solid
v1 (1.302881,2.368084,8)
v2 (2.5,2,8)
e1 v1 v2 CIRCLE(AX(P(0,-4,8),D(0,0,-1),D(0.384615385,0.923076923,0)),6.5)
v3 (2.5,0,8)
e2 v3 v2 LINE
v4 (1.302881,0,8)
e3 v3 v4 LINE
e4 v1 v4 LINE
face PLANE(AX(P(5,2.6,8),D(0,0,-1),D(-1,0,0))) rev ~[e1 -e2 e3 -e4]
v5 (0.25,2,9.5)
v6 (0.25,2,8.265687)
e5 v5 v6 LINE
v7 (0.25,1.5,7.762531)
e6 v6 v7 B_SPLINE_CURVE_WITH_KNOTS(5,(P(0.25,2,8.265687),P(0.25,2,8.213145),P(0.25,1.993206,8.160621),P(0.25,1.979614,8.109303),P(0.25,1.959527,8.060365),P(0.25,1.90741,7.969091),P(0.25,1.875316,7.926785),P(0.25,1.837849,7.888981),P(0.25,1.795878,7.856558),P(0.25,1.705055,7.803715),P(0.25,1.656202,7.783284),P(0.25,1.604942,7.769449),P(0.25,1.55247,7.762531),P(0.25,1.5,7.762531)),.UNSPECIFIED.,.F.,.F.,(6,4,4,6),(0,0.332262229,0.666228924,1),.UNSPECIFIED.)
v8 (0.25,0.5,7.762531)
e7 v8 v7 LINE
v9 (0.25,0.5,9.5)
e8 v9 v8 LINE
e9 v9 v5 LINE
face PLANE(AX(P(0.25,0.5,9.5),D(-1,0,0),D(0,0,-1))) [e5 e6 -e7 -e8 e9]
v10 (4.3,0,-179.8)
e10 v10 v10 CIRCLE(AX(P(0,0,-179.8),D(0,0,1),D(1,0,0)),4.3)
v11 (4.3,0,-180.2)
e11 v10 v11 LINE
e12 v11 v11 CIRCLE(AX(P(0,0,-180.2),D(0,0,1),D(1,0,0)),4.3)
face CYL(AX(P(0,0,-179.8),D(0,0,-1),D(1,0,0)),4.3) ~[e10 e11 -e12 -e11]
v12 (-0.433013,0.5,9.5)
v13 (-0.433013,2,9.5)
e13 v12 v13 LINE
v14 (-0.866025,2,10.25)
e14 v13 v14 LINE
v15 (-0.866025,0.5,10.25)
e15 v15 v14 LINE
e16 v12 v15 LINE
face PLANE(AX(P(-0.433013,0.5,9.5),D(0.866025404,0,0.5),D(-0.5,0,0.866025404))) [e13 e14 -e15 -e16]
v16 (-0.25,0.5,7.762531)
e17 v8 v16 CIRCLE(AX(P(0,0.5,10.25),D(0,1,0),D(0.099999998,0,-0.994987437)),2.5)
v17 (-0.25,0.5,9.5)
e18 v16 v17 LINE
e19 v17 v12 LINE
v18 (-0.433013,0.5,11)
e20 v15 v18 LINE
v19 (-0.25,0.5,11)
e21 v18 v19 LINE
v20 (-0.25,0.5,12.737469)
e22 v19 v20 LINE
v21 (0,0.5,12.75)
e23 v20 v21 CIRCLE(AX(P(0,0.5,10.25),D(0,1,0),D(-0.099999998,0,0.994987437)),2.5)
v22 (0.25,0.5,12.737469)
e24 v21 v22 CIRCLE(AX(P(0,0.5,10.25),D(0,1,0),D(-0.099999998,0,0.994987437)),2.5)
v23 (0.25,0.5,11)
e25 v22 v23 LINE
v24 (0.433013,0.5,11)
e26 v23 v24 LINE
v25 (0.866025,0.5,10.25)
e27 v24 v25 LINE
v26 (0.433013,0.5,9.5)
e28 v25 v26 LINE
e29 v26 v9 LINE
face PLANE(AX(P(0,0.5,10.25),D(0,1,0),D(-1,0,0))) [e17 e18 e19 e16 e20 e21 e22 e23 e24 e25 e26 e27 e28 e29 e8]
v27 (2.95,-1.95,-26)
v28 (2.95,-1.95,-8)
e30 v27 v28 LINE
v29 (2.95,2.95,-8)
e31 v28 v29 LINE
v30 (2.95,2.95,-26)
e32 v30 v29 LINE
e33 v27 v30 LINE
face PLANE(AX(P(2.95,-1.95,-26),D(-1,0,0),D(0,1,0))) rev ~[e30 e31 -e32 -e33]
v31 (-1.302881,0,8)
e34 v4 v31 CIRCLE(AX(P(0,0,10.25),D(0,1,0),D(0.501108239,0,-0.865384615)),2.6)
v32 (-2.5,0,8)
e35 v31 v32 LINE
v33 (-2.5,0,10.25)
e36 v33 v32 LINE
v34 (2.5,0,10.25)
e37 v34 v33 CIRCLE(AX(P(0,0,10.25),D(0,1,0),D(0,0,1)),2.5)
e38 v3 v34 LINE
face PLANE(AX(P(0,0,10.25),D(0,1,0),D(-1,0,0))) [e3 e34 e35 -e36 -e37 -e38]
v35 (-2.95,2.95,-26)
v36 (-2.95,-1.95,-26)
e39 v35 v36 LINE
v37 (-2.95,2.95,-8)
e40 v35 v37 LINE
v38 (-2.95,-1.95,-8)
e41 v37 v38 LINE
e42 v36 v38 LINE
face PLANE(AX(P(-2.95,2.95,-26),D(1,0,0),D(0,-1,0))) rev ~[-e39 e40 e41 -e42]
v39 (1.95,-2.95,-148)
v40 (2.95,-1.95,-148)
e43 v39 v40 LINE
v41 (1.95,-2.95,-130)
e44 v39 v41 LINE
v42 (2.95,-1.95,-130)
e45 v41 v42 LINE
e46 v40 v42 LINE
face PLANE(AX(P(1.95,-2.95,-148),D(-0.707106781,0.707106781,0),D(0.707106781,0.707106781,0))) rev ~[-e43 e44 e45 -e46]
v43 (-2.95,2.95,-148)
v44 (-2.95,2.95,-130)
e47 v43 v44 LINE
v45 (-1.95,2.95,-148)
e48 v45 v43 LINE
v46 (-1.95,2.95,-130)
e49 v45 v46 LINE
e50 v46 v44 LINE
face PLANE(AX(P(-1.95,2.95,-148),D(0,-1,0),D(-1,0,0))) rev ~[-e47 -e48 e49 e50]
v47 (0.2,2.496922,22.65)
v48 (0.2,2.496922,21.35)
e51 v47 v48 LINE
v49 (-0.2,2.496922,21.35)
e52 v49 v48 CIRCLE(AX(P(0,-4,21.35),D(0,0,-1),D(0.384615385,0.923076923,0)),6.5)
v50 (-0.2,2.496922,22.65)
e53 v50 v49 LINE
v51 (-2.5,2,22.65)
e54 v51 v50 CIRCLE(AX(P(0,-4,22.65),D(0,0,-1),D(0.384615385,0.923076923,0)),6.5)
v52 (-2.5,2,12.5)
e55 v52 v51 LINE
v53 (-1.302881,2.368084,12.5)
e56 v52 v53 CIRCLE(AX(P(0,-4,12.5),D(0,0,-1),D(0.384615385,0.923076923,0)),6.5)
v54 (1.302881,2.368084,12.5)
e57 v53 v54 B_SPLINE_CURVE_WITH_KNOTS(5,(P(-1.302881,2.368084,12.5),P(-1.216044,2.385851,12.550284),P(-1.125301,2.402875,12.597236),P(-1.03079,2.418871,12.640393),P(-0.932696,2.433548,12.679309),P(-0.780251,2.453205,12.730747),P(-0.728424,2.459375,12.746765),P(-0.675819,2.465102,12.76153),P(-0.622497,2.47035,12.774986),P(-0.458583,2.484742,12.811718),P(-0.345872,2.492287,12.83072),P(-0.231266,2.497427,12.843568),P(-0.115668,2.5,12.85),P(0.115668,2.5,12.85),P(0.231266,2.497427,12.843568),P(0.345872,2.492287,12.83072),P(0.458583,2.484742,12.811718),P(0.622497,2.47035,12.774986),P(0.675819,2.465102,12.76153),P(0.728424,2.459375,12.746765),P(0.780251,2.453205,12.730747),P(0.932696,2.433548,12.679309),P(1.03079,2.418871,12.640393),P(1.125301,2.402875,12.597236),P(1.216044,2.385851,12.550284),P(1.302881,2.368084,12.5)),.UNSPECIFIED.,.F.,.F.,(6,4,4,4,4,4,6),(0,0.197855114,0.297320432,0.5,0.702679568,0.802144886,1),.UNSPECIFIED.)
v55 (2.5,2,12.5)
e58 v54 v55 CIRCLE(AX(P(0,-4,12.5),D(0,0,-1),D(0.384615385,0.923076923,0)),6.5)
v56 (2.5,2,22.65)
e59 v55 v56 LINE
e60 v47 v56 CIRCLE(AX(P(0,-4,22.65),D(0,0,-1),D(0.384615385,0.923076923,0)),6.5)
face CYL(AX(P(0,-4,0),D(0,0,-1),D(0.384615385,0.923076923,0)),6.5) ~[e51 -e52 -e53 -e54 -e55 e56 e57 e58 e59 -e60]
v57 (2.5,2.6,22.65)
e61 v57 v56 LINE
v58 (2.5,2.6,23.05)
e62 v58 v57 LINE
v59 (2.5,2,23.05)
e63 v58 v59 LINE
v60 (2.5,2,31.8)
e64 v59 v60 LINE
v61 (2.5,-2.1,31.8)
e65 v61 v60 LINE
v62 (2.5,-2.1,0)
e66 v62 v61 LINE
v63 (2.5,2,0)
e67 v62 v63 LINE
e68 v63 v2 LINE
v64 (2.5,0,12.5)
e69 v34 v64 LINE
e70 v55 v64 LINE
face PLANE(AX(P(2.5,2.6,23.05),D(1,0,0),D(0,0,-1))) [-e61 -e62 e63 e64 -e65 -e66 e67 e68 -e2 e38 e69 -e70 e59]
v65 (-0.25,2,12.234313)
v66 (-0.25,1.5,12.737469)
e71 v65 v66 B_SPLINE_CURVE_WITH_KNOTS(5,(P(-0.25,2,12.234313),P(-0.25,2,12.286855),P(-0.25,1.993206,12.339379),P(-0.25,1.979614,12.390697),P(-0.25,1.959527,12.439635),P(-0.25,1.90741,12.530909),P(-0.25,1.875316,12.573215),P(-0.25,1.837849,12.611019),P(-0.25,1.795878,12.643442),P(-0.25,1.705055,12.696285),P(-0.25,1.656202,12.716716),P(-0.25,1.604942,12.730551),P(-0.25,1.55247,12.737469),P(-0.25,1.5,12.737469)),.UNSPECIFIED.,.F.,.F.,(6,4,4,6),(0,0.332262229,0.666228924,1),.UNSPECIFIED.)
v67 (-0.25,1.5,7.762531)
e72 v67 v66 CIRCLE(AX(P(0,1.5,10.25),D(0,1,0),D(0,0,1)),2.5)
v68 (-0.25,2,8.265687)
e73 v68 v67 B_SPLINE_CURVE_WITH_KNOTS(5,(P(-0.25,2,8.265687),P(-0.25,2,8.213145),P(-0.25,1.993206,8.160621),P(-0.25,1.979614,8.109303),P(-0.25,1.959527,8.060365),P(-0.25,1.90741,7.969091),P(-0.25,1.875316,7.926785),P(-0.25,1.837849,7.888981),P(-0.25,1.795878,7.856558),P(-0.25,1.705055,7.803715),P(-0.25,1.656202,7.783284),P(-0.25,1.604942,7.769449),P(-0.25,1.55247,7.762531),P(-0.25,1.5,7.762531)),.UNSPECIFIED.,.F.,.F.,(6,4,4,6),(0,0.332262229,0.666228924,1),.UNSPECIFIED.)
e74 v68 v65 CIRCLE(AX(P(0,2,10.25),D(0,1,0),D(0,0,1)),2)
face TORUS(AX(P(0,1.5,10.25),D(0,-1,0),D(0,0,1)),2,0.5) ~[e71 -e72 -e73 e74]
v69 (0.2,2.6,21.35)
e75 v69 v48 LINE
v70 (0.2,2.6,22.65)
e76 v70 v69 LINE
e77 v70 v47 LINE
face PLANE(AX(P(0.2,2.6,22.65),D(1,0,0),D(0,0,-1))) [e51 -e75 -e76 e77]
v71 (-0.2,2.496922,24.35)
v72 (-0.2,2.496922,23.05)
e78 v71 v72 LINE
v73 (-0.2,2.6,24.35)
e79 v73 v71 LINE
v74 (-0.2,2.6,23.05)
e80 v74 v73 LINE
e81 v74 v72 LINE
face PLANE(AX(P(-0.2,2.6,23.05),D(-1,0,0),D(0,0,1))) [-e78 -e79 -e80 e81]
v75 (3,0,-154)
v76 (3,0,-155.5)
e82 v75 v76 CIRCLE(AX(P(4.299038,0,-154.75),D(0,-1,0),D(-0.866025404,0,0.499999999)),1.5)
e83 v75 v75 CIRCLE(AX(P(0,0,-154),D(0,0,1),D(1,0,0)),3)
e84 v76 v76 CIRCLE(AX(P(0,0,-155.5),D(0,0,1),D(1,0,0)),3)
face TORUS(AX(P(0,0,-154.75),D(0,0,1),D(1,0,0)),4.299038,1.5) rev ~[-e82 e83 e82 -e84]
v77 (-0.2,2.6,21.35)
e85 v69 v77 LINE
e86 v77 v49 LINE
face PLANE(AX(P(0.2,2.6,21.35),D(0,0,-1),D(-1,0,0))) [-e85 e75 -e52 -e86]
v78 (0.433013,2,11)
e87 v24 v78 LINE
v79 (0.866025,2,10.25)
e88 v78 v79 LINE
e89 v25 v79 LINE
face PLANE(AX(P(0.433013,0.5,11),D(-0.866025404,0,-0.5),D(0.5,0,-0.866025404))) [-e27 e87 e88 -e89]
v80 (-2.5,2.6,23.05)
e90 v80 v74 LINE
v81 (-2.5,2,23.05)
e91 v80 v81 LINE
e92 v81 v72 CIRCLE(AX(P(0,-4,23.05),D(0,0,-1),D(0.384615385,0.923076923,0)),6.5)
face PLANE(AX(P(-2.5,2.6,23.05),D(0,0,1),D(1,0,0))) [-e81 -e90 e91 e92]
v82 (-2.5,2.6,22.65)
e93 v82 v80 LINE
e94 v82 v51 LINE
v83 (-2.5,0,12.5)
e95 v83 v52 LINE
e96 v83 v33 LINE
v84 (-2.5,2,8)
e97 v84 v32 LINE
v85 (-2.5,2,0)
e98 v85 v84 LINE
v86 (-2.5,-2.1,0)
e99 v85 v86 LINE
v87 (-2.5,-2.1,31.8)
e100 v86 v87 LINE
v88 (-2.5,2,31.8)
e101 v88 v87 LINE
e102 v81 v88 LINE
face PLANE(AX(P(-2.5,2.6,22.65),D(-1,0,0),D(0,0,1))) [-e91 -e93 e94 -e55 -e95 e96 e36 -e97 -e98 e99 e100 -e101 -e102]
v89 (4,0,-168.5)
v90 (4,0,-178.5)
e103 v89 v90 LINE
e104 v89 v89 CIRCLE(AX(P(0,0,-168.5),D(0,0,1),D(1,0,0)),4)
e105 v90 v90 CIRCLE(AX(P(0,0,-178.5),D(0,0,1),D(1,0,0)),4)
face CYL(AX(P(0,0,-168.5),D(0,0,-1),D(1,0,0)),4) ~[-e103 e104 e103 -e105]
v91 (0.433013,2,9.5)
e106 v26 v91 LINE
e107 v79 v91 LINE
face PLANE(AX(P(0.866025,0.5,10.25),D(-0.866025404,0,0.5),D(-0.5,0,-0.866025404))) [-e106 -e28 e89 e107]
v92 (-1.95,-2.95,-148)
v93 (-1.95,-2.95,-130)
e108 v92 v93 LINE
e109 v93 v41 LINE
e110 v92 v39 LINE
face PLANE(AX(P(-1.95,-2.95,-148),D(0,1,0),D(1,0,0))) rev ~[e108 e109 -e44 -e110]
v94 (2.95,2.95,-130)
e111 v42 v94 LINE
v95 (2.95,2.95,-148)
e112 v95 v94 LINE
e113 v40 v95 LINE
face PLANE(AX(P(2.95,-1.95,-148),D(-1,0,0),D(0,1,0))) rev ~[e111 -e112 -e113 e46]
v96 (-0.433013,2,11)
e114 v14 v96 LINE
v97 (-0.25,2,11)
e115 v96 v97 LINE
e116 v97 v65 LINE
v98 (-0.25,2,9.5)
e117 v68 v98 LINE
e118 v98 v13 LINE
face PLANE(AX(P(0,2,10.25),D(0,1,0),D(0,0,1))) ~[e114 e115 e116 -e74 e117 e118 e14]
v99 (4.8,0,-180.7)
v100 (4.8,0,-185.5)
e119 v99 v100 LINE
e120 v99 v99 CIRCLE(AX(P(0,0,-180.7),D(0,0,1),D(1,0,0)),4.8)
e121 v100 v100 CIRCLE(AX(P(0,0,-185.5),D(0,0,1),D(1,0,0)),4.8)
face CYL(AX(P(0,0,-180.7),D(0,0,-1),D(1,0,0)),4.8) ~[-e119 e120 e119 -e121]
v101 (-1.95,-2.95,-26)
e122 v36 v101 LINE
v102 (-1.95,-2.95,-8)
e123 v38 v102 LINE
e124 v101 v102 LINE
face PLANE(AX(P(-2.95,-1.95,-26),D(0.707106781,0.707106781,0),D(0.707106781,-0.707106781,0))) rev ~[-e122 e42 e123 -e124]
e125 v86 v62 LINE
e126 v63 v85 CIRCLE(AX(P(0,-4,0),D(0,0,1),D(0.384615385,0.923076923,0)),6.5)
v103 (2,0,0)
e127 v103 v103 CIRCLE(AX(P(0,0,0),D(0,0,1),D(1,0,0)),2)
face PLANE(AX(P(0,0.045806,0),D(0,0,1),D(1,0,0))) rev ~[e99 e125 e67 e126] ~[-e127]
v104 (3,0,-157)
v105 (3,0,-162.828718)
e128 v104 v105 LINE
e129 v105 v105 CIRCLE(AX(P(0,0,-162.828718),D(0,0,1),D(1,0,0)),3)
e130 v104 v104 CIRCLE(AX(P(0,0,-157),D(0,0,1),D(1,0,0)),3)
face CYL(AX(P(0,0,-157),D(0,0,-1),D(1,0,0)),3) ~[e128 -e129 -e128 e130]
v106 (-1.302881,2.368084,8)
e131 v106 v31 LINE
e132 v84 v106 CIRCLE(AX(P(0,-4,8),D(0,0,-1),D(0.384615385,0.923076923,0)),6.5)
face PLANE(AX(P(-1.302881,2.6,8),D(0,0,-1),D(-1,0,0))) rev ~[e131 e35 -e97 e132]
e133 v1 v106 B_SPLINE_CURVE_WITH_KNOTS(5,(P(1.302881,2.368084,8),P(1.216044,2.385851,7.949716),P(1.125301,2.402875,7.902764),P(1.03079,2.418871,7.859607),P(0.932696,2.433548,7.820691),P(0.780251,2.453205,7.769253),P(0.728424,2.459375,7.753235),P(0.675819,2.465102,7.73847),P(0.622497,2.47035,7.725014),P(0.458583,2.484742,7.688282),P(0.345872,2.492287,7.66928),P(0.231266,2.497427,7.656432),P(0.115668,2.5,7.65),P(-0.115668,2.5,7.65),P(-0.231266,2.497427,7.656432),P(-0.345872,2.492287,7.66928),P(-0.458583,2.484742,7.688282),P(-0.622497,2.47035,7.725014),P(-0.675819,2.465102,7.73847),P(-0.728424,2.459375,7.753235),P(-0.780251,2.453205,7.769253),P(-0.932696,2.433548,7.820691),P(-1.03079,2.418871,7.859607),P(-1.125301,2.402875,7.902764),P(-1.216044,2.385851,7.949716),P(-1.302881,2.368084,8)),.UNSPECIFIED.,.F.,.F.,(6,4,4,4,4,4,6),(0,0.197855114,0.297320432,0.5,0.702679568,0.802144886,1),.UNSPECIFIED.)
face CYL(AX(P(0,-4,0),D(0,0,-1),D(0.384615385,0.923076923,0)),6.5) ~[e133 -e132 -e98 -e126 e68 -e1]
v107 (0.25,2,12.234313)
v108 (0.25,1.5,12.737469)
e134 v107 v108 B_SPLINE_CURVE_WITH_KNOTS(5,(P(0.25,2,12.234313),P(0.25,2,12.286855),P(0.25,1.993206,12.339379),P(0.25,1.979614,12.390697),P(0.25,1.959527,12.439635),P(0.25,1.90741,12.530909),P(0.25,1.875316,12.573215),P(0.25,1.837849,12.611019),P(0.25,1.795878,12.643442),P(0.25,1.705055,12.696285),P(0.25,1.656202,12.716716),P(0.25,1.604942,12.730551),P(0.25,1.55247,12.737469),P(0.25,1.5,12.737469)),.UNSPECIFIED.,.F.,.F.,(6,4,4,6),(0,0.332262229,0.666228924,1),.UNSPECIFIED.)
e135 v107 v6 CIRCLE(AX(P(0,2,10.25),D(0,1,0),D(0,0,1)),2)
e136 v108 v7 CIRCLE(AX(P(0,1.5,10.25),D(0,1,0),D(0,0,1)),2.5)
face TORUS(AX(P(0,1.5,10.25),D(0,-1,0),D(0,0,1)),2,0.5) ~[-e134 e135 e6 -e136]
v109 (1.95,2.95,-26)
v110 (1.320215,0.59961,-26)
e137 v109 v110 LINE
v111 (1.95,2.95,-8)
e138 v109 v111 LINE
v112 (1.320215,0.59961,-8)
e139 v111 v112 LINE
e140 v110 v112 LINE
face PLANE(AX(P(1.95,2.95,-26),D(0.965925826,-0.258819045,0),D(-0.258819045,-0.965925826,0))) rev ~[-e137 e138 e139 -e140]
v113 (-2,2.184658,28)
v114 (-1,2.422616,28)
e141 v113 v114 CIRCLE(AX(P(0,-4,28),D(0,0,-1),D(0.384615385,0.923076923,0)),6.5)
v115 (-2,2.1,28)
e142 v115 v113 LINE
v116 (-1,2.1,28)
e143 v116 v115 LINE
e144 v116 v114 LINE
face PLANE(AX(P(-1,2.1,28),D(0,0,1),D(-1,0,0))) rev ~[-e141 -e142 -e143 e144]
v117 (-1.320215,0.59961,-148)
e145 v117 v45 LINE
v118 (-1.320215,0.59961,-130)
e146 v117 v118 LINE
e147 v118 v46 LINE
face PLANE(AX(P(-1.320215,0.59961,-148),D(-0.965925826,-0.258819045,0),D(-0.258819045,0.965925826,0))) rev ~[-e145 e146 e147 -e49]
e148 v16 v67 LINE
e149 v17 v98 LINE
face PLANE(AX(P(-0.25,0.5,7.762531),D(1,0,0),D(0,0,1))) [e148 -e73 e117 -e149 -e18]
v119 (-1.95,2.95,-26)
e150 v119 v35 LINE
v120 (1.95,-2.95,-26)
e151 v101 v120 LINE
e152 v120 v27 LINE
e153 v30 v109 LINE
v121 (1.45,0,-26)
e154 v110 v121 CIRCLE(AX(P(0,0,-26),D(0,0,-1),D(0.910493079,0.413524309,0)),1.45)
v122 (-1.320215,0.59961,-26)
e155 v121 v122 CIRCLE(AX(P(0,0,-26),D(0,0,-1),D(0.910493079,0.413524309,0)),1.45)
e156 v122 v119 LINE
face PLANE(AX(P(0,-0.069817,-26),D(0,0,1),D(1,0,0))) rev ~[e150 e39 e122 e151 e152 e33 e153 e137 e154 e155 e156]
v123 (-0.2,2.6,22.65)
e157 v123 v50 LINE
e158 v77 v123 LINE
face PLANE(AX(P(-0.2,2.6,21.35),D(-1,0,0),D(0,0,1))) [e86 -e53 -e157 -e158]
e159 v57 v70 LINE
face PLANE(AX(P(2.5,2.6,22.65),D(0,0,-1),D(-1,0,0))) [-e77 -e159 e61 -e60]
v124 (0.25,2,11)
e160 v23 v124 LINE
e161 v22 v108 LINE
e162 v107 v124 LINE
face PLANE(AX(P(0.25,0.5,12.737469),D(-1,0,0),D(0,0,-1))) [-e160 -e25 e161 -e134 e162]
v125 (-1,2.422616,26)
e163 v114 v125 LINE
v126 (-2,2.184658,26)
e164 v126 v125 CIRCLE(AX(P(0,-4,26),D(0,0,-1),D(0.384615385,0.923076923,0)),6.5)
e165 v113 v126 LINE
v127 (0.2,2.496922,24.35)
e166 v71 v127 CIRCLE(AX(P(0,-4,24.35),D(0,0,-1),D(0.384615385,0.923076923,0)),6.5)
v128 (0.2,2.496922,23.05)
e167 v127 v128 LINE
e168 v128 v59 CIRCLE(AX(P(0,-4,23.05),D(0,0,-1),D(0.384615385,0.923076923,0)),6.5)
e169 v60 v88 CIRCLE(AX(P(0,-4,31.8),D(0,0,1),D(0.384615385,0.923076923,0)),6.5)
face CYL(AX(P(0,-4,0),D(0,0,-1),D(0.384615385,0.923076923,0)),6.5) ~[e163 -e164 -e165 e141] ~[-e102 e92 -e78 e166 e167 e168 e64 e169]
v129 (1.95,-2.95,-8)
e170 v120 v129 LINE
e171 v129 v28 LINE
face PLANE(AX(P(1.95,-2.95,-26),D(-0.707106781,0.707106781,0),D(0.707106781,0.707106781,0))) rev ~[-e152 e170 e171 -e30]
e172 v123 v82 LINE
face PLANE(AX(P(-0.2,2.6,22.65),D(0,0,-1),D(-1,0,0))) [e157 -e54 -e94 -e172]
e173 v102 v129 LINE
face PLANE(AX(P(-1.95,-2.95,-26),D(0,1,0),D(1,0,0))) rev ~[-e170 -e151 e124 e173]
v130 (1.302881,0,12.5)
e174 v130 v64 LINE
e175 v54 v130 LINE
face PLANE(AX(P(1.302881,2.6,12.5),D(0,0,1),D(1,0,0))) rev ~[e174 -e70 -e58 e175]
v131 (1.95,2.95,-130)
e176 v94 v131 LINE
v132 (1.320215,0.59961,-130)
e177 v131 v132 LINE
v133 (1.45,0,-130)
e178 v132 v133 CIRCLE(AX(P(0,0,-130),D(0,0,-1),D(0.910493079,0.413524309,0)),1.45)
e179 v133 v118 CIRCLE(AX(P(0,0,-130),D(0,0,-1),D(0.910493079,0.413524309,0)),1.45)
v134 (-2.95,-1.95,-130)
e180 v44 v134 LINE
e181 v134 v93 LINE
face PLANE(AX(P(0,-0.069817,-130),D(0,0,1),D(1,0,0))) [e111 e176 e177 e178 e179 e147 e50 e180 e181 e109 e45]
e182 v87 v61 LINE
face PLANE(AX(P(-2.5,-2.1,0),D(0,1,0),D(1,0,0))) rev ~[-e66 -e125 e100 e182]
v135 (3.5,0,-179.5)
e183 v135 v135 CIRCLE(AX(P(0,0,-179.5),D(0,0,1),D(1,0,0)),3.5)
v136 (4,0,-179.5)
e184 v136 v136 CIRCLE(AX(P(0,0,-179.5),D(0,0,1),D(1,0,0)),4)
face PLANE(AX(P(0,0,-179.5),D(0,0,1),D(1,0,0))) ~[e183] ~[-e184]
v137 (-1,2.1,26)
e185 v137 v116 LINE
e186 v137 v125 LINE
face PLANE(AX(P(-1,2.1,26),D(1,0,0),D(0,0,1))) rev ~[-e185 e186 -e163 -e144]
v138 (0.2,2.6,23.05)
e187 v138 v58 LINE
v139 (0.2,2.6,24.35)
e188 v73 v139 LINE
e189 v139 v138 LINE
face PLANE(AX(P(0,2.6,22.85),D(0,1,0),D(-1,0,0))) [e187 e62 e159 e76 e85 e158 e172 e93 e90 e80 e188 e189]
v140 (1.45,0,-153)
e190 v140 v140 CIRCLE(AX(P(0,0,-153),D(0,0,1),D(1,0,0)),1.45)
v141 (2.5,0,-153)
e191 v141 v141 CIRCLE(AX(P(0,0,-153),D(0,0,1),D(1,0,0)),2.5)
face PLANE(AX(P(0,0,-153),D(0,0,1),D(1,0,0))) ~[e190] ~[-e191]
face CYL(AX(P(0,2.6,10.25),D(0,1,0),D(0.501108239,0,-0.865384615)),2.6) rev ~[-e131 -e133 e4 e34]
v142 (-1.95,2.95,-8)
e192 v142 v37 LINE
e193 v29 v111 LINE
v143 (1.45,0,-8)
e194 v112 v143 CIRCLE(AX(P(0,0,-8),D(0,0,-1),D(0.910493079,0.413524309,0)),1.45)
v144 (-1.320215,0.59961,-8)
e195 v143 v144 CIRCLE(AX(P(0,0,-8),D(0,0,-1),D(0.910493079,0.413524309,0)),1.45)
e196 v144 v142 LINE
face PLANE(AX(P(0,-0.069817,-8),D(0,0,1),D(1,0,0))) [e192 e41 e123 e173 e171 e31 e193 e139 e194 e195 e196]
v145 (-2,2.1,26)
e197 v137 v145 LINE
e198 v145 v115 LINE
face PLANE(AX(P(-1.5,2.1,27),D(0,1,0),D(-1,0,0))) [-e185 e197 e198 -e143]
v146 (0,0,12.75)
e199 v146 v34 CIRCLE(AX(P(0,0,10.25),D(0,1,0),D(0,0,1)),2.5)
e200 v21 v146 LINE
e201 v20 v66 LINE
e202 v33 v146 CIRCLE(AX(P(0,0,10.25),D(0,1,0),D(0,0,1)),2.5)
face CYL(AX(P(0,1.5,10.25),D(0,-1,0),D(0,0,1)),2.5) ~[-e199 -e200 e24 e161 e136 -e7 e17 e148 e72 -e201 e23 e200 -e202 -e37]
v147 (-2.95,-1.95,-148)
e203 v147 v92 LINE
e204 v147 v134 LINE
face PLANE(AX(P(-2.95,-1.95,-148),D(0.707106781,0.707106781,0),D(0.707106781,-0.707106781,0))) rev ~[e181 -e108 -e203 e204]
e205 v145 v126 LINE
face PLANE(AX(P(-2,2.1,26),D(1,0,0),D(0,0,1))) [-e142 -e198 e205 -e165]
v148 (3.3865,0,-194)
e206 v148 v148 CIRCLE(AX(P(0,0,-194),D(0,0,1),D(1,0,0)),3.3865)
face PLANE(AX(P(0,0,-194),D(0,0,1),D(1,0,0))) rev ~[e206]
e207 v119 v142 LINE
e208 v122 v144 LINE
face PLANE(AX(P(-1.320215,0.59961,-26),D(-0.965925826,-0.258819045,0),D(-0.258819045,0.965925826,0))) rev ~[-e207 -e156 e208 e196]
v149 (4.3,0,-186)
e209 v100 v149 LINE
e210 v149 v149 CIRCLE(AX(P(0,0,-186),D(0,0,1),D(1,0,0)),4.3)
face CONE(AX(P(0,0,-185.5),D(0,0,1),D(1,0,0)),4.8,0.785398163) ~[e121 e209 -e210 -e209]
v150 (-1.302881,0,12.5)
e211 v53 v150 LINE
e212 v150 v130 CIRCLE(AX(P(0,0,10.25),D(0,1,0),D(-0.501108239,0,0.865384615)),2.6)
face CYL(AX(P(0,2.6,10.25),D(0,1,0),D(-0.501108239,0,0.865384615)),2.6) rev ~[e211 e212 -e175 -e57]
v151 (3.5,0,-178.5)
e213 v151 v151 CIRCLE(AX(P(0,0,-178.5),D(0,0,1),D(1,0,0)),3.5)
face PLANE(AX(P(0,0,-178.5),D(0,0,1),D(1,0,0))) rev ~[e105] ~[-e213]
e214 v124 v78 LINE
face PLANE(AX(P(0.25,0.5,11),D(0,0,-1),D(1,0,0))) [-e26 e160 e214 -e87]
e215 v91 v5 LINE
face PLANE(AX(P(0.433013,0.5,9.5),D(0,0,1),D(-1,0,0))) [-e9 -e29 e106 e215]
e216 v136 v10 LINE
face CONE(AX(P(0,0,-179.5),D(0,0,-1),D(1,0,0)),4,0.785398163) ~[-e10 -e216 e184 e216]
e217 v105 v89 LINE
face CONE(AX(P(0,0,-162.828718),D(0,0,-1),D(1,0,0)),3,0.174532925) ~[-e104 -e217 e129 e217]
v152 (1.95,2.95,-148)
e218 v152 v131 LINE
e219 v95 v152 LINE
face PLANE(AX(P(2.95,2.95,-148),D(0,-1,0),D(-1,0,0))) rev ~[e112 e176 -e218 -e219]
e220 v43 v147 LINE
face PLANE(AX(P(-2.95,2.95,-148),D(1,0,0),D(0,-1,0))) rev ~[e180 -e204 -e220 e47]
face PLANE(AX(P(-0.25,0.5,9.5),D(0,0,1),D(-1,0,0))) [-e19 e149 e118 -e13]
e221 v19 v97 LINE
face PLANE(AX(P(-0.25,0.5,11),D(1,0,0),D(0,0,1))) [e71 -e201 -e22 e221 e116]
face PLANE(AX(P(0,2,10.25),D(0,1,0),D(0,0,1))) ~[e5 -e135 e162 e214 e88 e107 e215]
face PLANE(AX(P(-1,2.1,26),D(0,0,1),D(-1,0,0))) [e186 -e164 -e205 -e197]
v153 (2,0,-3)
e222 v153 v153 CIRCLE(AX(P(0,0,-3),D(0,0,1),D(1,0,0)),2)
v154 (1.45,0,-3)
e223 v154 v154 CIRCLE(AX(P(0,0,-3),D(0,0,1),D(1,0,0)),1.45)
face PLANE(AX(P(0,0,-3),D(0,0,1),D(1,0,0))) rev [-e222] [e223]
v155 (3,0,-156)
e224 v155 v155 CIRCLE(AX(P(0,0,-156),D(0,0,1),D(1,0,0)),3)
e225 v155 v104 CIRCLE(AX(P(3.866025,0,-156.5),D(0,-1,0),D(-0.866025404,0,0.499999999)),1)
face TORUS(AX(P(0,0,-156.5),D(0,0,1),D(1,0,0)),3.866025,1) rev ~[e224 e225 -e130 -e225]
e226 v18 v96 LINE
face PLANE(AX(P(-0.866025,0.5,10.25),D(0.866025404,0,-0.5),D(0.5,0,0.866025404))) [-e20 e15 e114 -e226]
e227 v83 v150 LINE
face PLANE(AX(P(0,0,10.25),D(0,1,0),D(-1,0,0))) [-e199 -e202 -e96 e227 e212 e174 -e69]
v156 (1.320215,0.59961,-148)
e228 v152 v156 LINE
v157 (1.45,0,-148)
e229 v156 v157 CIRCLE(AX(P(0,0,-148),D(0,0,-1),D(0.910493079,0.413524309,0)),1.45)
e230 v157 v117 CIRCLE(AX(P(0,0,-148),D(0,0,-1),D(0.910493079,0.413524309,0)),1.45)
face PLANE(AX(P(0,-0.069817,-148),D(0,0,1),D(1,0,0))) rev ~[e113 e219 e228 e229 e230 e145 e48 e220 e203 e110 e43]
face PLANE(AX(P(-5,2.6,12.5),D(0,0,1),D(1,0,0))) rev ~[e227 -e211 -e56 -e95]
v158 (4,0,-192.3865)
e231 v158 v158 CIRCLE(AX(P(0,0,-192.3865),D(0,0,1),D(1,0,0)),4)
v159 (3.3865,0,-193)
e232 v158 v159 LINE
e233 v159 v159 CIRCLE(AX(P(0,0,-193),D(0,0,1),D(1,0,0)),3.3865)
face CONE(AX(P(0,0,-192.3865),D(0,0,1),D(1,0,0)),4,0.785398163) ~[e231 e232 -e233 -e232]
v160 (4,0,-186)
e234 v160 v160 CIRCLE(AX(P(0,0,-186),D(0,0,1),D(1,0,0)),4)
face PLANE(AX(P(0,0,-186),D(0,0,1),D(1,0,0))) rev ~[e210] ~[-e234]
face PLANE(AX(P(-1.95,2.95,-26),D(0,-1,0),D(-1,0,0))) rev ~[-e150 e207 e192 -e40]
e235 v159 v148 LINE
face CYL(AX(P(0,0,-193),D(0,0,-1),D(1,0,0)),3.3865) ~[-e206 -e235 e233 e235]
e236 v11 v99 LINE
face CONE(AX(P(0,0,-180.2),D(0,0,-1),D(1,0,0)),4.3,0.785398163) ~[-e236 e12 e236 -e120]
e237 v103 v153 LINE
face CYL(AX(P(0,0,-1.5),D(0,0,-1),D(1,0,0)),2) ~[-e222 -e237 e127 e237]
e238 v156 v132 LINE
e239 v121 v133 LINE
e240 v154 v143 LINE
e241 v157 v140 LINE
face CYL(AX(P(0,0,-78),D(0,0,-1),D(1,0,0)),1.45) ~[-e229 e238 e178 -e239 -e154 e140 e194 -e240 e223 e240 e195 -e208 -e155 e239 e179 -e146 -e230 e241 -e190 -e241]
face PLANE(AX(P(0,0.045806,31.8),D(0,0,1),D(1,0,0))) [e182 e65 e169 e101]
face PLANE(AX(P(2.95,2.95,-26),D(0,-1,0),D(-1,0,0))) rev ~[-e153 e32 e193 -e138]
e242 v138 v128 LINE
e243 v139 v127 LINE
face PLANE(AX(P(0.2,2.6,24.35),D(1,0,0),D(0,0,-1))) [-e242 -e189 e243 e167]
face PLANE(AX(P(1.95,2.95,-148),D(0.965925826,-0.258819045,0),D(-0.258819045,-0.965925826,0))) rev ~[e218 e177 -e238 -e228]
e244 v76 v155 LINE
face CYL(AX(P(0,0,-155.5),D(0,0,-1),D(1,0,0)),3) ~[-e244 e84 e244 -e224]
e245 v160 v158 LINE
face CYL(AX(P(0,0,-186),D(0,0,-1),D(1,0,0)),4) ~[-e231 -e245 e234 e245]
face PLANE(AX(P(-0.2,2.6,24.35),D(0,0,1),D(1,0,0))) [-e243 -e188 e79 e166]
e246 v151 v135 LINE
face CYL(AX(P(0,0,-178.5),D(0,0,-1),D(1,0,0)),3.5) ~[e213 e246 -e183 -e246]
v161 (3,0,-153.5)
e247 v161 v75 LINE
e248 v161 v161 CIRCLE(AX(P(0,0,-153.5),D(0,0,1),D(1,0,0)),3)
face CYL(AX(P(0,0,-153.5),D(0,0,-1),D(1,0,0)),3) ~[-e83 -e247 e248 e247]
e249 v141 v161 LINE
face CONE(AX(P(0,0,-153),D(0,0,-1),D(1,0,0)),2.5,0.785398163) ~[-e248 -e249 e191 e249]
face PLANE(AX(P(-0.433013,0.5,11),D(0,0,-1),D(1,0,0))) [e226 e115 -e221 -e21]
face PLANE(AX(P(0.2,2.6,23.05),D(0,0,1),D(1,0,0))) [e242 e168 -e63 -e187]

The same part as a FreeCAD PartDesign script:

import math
import FreeCAD as App
import Part
import Sketcher
from FreeCAD import Vector
Q = App.Units.Quantity


def add_polygon(sketch, points):
    """Adds a closed chain of lines whose ends are joined by coincident constraints."""
    first, n = sketch.GeometryCount, len(points)
    for a, b in zip(points, points[1:] + points[:1]):
        sketch.addGeometry(Part.LineSegment(App.Vector(*a, 0), App.Vector(*b, 0)), False)
    for i in range(n):
        sketch.addConstraint(Sketcher.Constraint("Coincident", first + i, 2, first + (i + 1) % n, 1))

doc = App.newDocument("Part")
body = doc.addObject("PartDesign::Body", "Body")

sketch1 = body.newObject("Sketcher::SketchObject", "Sketch")
sketch1.AttachmentSupport = (doc.getObject("XY_Plane"), [""])
sketch1.MapMode = "FlatFace"
sketch1.addGeometry([
    Part.LineSegment(Vector(-2.5, -2.1, 0), Vector(2.5, -2.1, 0)),
    Part.LineSegment(Vector(2.5, -2.1, 0), Vector(2.5, 2, 0)),
    Part.ArcOfCircle(Part.Circle(Vector(0, -4, 0), Vector(0, 0, 1), 6.5), math.radians(67), math.radians(113)),
    Part.LineSegment(Vector(-2.5, 2, 0), Vector(-2.5, -2.1, 0)),
], False)
sketch1.addConstraint([
    Sketcher.Constraint("Coincident", 0, 2, 1, 1),
    Sketcher.Constraint("Coincident", 1, 2, 2, 1),
    Sketcher.Constraint("Coincident", 2, 2, 3, 1),
    Sketcher.Constraint("Coincident", 3, 2, 0, 1),
    Sketcher.Constraint("Horizontal", 0),
    Sketcher.Constraint("Vertical", 1),
    Sketcher.Constraint("Vertical", 3),
    Sketcher.Constraint("Symmetric", 1, 2, 2, 2, -2),
    Sketcher.Constraint("Radius", 2, Q("6.5 mm")),
    Sketcher.Constraint("DistanceX", 0, 1, 0, 2, Q("5 mm")),
    Sketcher.Constraint("DistanceY", 1, 1, 1, 2, Q("4.1 mm")),
    Sketcher.Constraint("DistanceY", 2, 3, -1, 1, Q("4 mm")),
])
pad1 = body.newObject("PartDesign::Pad", "Pad")
pad1.Profile = sketch1
pad1.Length = 31.8

sketch2 = body.newObject("Sketcher::SketchObject", "Sketch001")
sketch2.AttachmentSupport = (doc.getObject("YZ_Plane"), [""])
sketch2.MapMode = "FlatFace"
add_polygon(sketch2, [(2, 0), (0, 0), (0, -3), (2, -3)])
sketch2.addConstraint([
    Sketcher.Constraint("Horizontal", 0),
    Sketcher.Constraint("Vertical", 1),
    Sketcher.Constraint("Horizontal", 2),
    Sketcher.Constraint("Vertical", 3),
    Sketcher.Constraint("Coincident", 0, 2, -1, 1),
    Sketcher.Constraint("DistanceX", 0, 2, 0, 1, Q("2 mm")),
    Sketcher.Constraint("DistanceY", 1, 2, 1, 1, Q("3 mm")),
])
revolution = body.newObject("PartDesign::Revolution", "Revolution")
revolution.Profile = sketch2
revolution.ReferenceAxis = (sketch2, ["V_Axis"])
revolution.Angle = 360

sketch3 = body.newObject("Sketcher::SketchObject", "Sketch002")
sketch3.AttachmentSupport = (doc.getObject("XZ_Plane"), [""])
sketch3.MapMode = "FlatFace"
sketch3.AttachmentOffset = App.Placement(Vector(0, 0, -2.6), App.Rotation())
add_polygon(sketch3, [(-2.5, 23.05), (-0.2, 23.05), (-0.2, 24.35), (0.2, 24.35), (0.2, 23.05), (2.5, 23.05), (2.5, 22.65), (0.2, 22.65), (0.2, 21.35), (-0.2, 21.35), (-0.2, 22.65), (-2.5, 22.65)])
sketch3.addConstraint([
    Sketcher.Constraint("Horizontal", 0),
    Sketcher.Constraint("Vertical", 1),
    Sketcher.Constraint("Horizontal", 2),
    Sketcher.Constraint("Vertical", 3),
    Sketcher.Constraint("Horizontal", 4),
    Sketcher.Constraint("Vertical", 5),
    Sketcher.Constraint("Horizontal", 6),
    Sketcher.Constraint("Vertical", 7),
    Sketcher.Constraint("Horizontal", 8),
    Sketcher.Constraint("Vertical", 9),
    Sketcher.Constraint("Horizontal", 10),
    Sketcher.Constraint("Vertical", 11),
    Sketcher.Constraint("Symmetric", 0, 2, 3, 2, -2),
    Sketcher.Constraint("Symmetric", 6, 2, 9, 2, -2),
    Sketcher.Constraint("Vertical", 3, 2, 6, 2),
    Sketcher.Constraint("Equal", 0, 4),
    Sketcher.Constraint("Equal", 8, 5),
    Sketcher.Constraint("Equal", 3, 7),
    Sketcher.Constraint("DistanceX", 0, 1, 0, 2, Q("2.3 mm")),
    Sketcher.Constraint("DistanceX", 2, 1, 2, 2, Q("0.4 mm")),
    Sketcher.Constraint("DistanceY", 1, 1, 1, 2, Q("1.3 mm")),
    Sketcher.Constraint("DistanceY", -1, 1, 0, 2, Q("23.05 mm")),
])
pad2 = body.newObject("PartDesign::Pad", "Pad001")
pad2.Profile = sketch3
pad2.Length = 2

sketch4 = body.newObject("Sketcher::SketchObject", "Sketch003")
sketch4.AttachmentSupport = (doc.getObject("YZ_Plane"), [""])
sketch4.MapMode = "FlatFace"
add_polygon(sketch4, [(1.4, -3), (0, -3), (0, -153), (1.4, -153)])
sketch4.addConstraint([
    Sketcher.Constraint("Horizontal", 0),
    Sketcher.Constraint("Vertical", 1),
    Sketcher.Constraint("Horizontal", 2),
    Sketcher.Constraint("Vertical", 3),
    Sketcher.Constraint("PointOnObject", 0, 2, -2),
    Sketcher.Constraint("DistanceY", 1, 2, 1, 1, Q("150 mm")),
    Sketcher.Constraint("DistanceY", 0, 2, -1, 1, Q("3 mm")),
    Sketcher.Constraint("DistanceX", 0, 2, 0, 1, Q("1.45 mm")),
])
revolution2 = body.newObject("PartDesign::Revolution", "Revolution001")
revolution2.Profile = sketch4
revolution2.ReferenceAxis = (sketch4, ["V_Axis"])
revolution2.Angle = 360

sketch5 = body.newObject("Sketcher::SketchObject", "Sketch004")
sketch5.AttachmentSupport = (doc.getObject("XY_Plane"), [""])
sketch5.MapMode = "FlatFace"
sketch5.AttachmentOffset = App.Placement(Vector(0, 0, -26), App.Rotation())
sketch5.addGeometry([
    Part.LineSegment(Vector(-3, 3, 0), Vector(-3, -1.9, 0)),
    Part.LineSegment(Vector(-3, -1.9, 0), Vector(-1.9, -3, 0)),
    Part.LineSegment(Vector(-1.9, -3, 0), Vector(1.9, -3, 0)),
    Part.LineSegment(Vector(1.9, -3, 0), Vector(3, -1.9, 0)),
    Part.LineSegment(Vector(3, -1.9, 0), Vector(3, 3, 0)),
    Part.LineSegment(Vector(3, 3, 0), Vector(1.9, 3, 0)),
    Part.LineSegment(Vector(1.9, 3, 0), Vector(1.3, 0.6, 0)),
    Part.ArcOfCircle(Part.Circle(Vector(0, 0, 0), Vector(0, 0, 1), 1.4), math.radians(156), math.radians(384)),
    Part.LineSegment(Vector(-1.3, 0.6, 0), Vector(-1.9, 3, 0)),
    Part.LineSegment(Vector(-1.9, 3, 0), Vector(-3, 3, 0)),
], False)
sketch5.addConstraint([
    Sketcher.Constraint("Coincident", 0, 2, 1, 1),
    Sketcher.Constraint("Coincident", 1, 2, 2, 1),
    Sketcher.Constraint("Coincident", 2, 2, 3, 1),
    Sketcher.Constraint("Coincident", 3, 2, 4, 1),
    Sketcher.Constraint("Coincident", 4, 2, 5, 1),
    Sketcher.Constraint("Coincident", 5, 2, 6, 1),
    Sketcher.Constraint("Coincident", 6, 2, 7, 2),
    Sketcher.Constraint("Coincident", 7, 1, 8, 1),
    Sketcher.Constraint("Coincident", 8, 2, 9, 1),
    Sketcher.Constraint("Coincident", 9, 2, 0, 1),
    Sketcher.Constraint("Vertical", 0),
    Sketcher.Constraint("Horizontal", 2),
    Sketcher.Constraint("Vertical", 4),
    Sketcher.Constraint("Horizontal", 5),
    Sketcher.Constraint("Horizontal", 9),
    Sketcher.Constraint("Coincident", 7, 3, -1, 1),
    Sketcher.Constraint("Symmetric", 1, 2, 5, 2, -1, 1),
    Sketcher.Constraint("Symmetric", 2, 2, 8, 2, -1, 1),
    Sketcher.Constraint("Symmetric", 0, 2, 3, 2, -2),
    Sketcher.Constraint("Perpendicular", 1, 3),
    Sketcher.Constraint("Horizontal", 6, 2, 7, 1),
    Sketcher.Constraint("Vertical", 2, 2, 5, 2),
    Sketcher.Constraint("DistanceX", 5, 2, 5, 1, Q("1 mm")),
    Sketcher.Constraint("Angle", 6, Q("-105 deg")),
    Sketcher.Constraint("Radius", 7, Q("1.45 mm")),
    Sketcher.Constraint("DistanceX", 2, 1, 2, 2, Q("3.9 mm")),
    Sketcher.Constraint("DistanceY", 0, 2, 0, 1, Q("4.9 mm")),
])
pad3 = body.newObject("PartDesign::Pad", "Pad002")
pad3.Profile = sketch5
pad3.Length = 18

sketch6 = body.newObject("Sketcher::SketchObject", "Sketch005")
sketch6.AttachmentSupport = (doc.getObject("XY_Plane"), [""])
sketch6.MapMode = "FlatFace"
sketch6.AttachmentOffset = App.Placement(Vector(0, 0, -148), App.Rotation())
sketch6.addGeometry([
    Part.LineSegment(Vector(-3, 3, 0), Vector(-3, -1.9, 0)),
    Part.LineSegment(Vector(-3, -1.9, 0), Vector(-1.9, -3, 0)),
    Part.LineSegment(Vector(-1.9, -3, 0), Vector(1.9, -3, 0)),
    Part.LineSegment(Vector(1.9, -3, 0), Vector(3, -1.9, 0)),
    Part.LineSegment(Vector(3, -1.9, 0), Vector(3, 3, 0)),
    Part.LineSegment(Vector(3, 3, 0), Vector(1.9, 3, 0)),
    Part.LineSegment(Vector(1.9, 3, 0), Vector(1.3, 0.6, 0)),
    Part.ArcOfCircle(Part.Circle(Vector(0, 0, 0), Vector(0, 0, 1), 1.4), math.radians(156), math.radians(384)),
    Part.LineSegment(Vector(-1.3, 0.6, 0), Vector(-1.9, 3, 0)),
    Part.LineSegment(Vector(-1.9, 3, 0), Vector(-3, 3, 0)),
], False)
sketch6.addConstraint([
    Sketcher.Constraint("Coincident", 0, 2, 1, 1),
    Sketcher.Constraint("Coincident", 1, 2, 2, 1),
    Sketcher.Constraint("Coincident", 2, 2, 3, 1),
    Sketcher.Constraint("Coincident", 3, 2, 4, 1),
    Sketcher.Constraint("Coincident", 4, 2, 5, 1),
    Sketcher.Constraint("Coincident", 5, 2, 6, 1),
    Sketcher.Constraint("Coincident", 6, 2, 7, 2),
    Sketcher.Constraint("Coincident", 7, 1, 8, 1),
    Sketcher.Constraint("Coincident", 8, 2, 9, 1),
    Sketcher.Constraint("Coincident", 9, 2, 0, 1),
    Sketcher.Constraint("Vertical", 0),
    Sketcher.Constraint("Horizontal", 2),
    Sketcher.Constraint("Vertical", 4),
    Sketcher.Constraint("Horizontal", 5),
    Sketcher.Constraint("Horizontal", 9),
    Sketcher.Constraint("Coincident", 7, 3, -1, 1),
    Sketcher.Constraint("Symmetric", 1, 2, 5, 2, -1, 1),
    Sketcher.Constraint("Symmetric", 2, 2, 8, 2, -1, 1),
    Sketcher.Constraint("Symmetric", 0, 2, 3, 2, -2),
    Sketcher.Constraint("Perpendicular", 1, 3),
    Sketcher.Constraint("Horizontal", 6, 2, 7, 1),
    Sketcher.Constraint("Vertical", 2, 2, 5, 2),
    Sketcher.Constraint("DistanceX", 5, 2, 5, 1, Q("1 mm")),
    Sketcher.Constraint("Angle", 6, Q("-105 deg")),
    Sketcher.Constraint("Radius", 7, Q("1.45 mm")),
    Sketcher.Constraint("DistanceX", 2, 1, 2, 2, Q("3.9 mm")),
    Sketcher.Constraint("DistanceY", 0, 2, 0, 1, Q("4.9 mm")),
])
pad4 = body.newObject("PartDesign::Pad", "Pad003")
pad4.Profile = sketch6
pad4.Length = 18

sketch7 = body.newObject("Sketcher::SketchObject", "Sketch006")
sketch7.AttachmentSupport = (doc.getObject("YZ_Plane"), [""])
sketch7.MapMode = "FlatFace"
sketch7.addGeometry([
    Part.LineSegment(Vector(2.5, -153, 0), Vector(0, -153, 0)),
    Part.LineSegment(Vector(0, -153, 0), Vector(0, -194, 0)),
    Part.LineSegment(Vector(0, -194, 0), Vector(3.39, -194, 0)),
    Part.LineSegment(Vector(3.39, -194, 0), Vector(3.39, -193, 0)),
    Part.LineSegment(Vector(3.39, -193, 0), Vector(4, -192.39, 0)),
    Part.LineSegment(Vector(4, -192.39, 0), Vector(4, -186, 0)),
    Part.LineSegment(Vector(4, -186, 0), Vector(4.3, -186, 0)),
    Part.LineSegment(Vector(4.3, -186, 0), Vector(4.8, -185.5, 0)),
    Part.LineSegment(Vector(4.8, -185.5, 0), Vector(4.8, -180.7, 0)),
    Part.LineSegment(Vector(4.8, -180.7, 0), Vector(4.3, -180.2, 0)),
    Part.LineSegment(Vector(4.3, -180.2, 0), Vector(4.3, -179.8, 0)),
    Part.LineSegment(Vector(4.3, -179.8, 0), Vector(4, -179.5, 0)),
    Part.LineSegment(Vector(4, -179.5, 0), Vector(3.5, -179.5, 0)),
    Part.LineSegment(Vector(3.5, -179.5, 0), Vector(3.5, -178.5, 0)),
    Part.LineSegment(Vector(3.5, -178.5, 0), Vector(4, -178.5, 0)),
    Part.LineSegment(Vector(4, -178.5, 0), Vector(4, -168.5, 0)),
    Part.LineSegment(Vector(4, -168.5, 0), Vector(3, -162.83, 0)),
    Part.LineSegment(Vector(3, -162.83, 0), Vector(3, -157, 0)),
    Part.ArcOfCircle(Part.Circle(Vector(3.87, -156.5, 0), Vector(0, 0, 1), 1), math.radians(150), math.radians(210)),
    Part.LineSegment(Vector(3, -156, 0), Vector(3, -155.5, 0)),
    Part.ArcOfCircle(Part.Circle(Vector(4.3, -154.75, 0), Vector(0, 0, 1), 1.5), math.radians(150), math.radians(210)),
    Part.LineSegment(Vector(3, -154, 0), Vector(3, -153.5, 0)),
    Part.LineSegment(Vector(3, -153.5, 0), Vector(2.5, -153, 0)),
], False)
sketch7.addConstraint([
    Sketcher.Constraint("Coincident", 0, 2, 1, 1),
    Sketcher.Constraint("Coincident", 1, 2, 2, 1),
    Sketcher.Constraint("Coincident", 2, 2, 3, 1),
    Sketcher.Constraint("Coincident", 3, 2, 4, 1),
    Sketcher.Constraint("Coincident", 4, 2, 5, 1),
    Sketcher.Constraint("Coincident", 5, 2, 6, 1),
    Sketcher.Constraint("Coincident", 6, 2, 7, 1),
    Sketcher.Constraint("Coincident", 7, 2, 8, 1),
    Sketcher.Constraint("Coincident", 8, 2, 9, 1),
    Sketcher.Constraint("Coincident", 9, 2, 10, 1),
    Sketcher.Constraint("Coincident", 10, 2, 11, 1),
    Sketcher.Constraint("Coincident", 11, 2, 12, 1),
    Sketcher.Constraint("Coincident", 12, 2, 13, 1),
    Sketcher.Constraint("Coincident", 13, 2, 14, 1),
    Sketcher.Constraint("Coincident", 14, 2, 15, 1),
    Sketcher.Constraint("Coincident", 15, 2, 16, 1),
    Sketcher.Constraint("Coincident", 16, 2, 17, 1),
    Sketcher.Constraint("Coincident", 17, 2, 18, 2),
    Sketcher.Constraint("Coincident", 18, 1, 19, 1),
    Sketcher.Constraint("Coincident", 19, 2, 20, 2),
    Sketcher.Constraint("Coincident", 20, 1, 21, 1),
    Sketcher.Constraint("Coincident", 21, 2, 22, 1),
    Sketcher.Constraint("Coincident", 22, 2, 0, 1),
    Sketcher.Constraint("Horizontal", 0),
    Sketcher.Constraint("Vertical", 1),
    Sketcher.Constraint("Horizontal", 2),
    Sketcher.Constraint("Vertical", 3),
    Sketcher.Constraint("Vertical", 5),
    Sketcher.Constraint("Horizontal", 6),
    Sketcher.Constraint("Vertical", 8),
    Sketcher.Constraint("Vertical", 10),
    Sketcher.Constraint("Horizontal", 12),
    Sketcher.Constraint("Vertical", 13),
    Sketcher.Constraint("Horizontal", 14),
    Sketcher.Constraint("Vertical", 15),
    Sketcher.Constraint("Vertical", 17),
    Sketcher.Constraint("Vertical", 19),
    Sketcher.Constraint("Vertical", 21),
    Sketcher.Constraint("PointOnObject", 0, 2, -2),
    Sketcher.Constraint("Parallel", 4, 7),
    Sketcher.Constraint("Perpendicular", 7, 9),
    Sketcher.Constraint("Parallel", 9, 11),
    Sketcher.Constraint("Parallel", 11, 22),
    Sketcher.Constraint("Vertical", 6, 2, 9, 2),
    Sketcher.Constraint("Vertical", 5, 2, 11, 2),
    Sketcher.Constraint("Vertical", 11, 2, 14, 2),
    Sketcher.Constraint("Vertical", 17, 2, 18, 1),
    Sketcher.Constraint("Vertical", 19, 2, 20, 1),
    Sketcher.Constraint("Equal", 3, 13),
    Sketcher.Constraint("Equal", 14, 19),
    Sketcher.Constraint("Equal", 19, 21),
    Sketcher.Constraint("Equal", 7, 9),
    Sketcher.Constraint("Equal", 9, 22),
    Sketcher.Constraint("Radius", 18, Q("1 mm")),
    Sketcher.Constraint("Radius", 20, Q("1.5 mm")),
    Sketcher.Constraint("DistanceY", 1, 2, 1, 1, Q("41 mm")),
    Sketcher.Constraint("DistanceY", 3, 1, 3, 2, Q("1 mm")),
    Sketcher.Constraint("DistanceY", 15, 1, 15, 2, Q("10 mm")),
    Sketcher.Constraint("Angle", 16, Q("100 deg")),
    Sketcher.Constraint("DistanceX", 0, 2, 0, 1, Q("2.5 mm")),
    Sketcher.Constraint("DistanceX", 6, 1, 6, 2, Q("0.3 mm")),
    Sketcher.Constraint("DistanceX", 12, 2, 12, 1, Q("0.5 mm")),
    Sketcher.Constraint("DistanceY", 8, 1, 8, 2, Q("4.8 mm")),
    Sketcher.Constraint("DistanceY", 10, 1, 10, 2, Q("0.4 mm")),
    Sketcher.Constraint("DistanceY", 0, 2, -1, 1, Q("153 mm")),
    Sketcher.Constraint("DistanceX", -1, 1, 4, 2, Q("4 mm")),
    Sketcher.Constraint("DistanceY", 5, 2, -1, 1, Q("186 mm")),
    Sketcher.Constraint("DistanceX", -1, 1, 16, 2, Q("3 mm")),
    Sketcher.Constraint("DistanceY", 17, 2, -1, 1, Q("157 mm")),
    Sketcher.Constraint("DistanceY", 18, 1, -1, 1, Q("156 mm")),
    Sketcher.Constraint("DistanceX", 2, 1, 2, 2, Q("3.3865 mm")),
])
revolution3 = body.newObject("PartDesign::Revolution", "Revolution002")
revolution3.Profile = sketch7
revolution3.ReferenceAxis = (sketch7, ["V_Axis"])
revolution3.Angle = 360

sketch8 = body.newObject("Sketcher::SketchObject", "Sketch007")
sketch8.AttachmentSupport = (doc.getObject("XZ_Plane"), [""])
sketch8.MapMode = "FlatFace"
sketch8.AttachmentOffset = App.Placement(Vector(0, 0, -2.6), App.Rotation())
add_polygon(sketch8, [(-1, 28), (-1, 26), (-2, 26), (-2, 28)])
sketch8.addConstraint([
    Sketcher.Constraint("Vertical", 0),
    Sketcher.Constraint("Horizontal", 1),
    Sketcher.Constraint("Vertical", 2),
    Sketcher.Constraint("Horizontal", 3),
    Sketcher.Constraint("DistanceX", 1, 2, 1, 1, Q("1 mm")),
    Sketcher.Constraint("DistanceY", 0, 2, 0, 1, Q("2 mm")),
    Sketcher.Constraint("DistanceX", 0, 2, -1, 1, Q("1 mm")),
    Sketcher.Constraint("DistanceY", -1, 1, 0, 2, Q("26 mm")),
])
pocket1 = body.newObject("PartDesign::Pocket", "Pocket")
pocket1.Profile = sketch8
pocket1.Type = "TwoLengths"
pocket1.Length = 0.5
pocket1.Length2 = 0.5

sketch9 = body.newObject("Sketcher::SketchObject", "Sketch008")
sketch9.AttachmentSupport = (doc.getObject("XZ_Plane"), [""])
sketch9.MapMode = "FlatFace"
sketch9.AttachmentOffset = App.Placement(Vector(0, 0, -2.6), App.Rotation())
sketch9.addGeometry([
    Part.LineSegment(Vector(-5, 8, 0), Vector(-5, 12.5, 0)),
    Part.LineSegment(Vector(-5, 12.5, 0), Vector(-1.3, 12.5, 0)),
    Part.ArcOfCircle(Part.Circle(Vector(0, 10.2, 0), Vector(0, 0, 1), 2.6), math.radians(60), math.radians(120)),
    Part.LineSegment(Vector(1.3, 12.5, 0), Vector(5, 12.5, 0)),
    Part.LineSegment(Vector(5, 12.5, 0), Vector(5, 8, 0)),
    Part.LineSegment(Vector(5, 8, 0), Vector(1.3, 8, 0)),
    Part.ArcOfCircle(Part.Circle(Vector(0, 10.2, 0), Vector(0, 0, 1), 2.6), math.radians(-120), math.radians(-60)),
    Part.LineSegment(Vector(-1.3, 8, 0), Vector(-5, 8, 0)),
], False)
sketch9.addConstraint([
    Sketcher.Constraint("Coincident", 0, 2, 1, 1),
    Sketcher.Constraint("Coincident", 1, 2, 2, 2),
    Sketcher.Constraint("Coincident", 2, 1, 3, 1),
    Sketcher.Constraint("Coincident", 3, 2, 4, 1),
    Sketcher.Constraint("Coincident", 4, 2, 5, 1),
    Sketcher.Constraint("Coincident", 5, 2, 6, 2),
    Sketcher.Constraint("Coincident", 6, 1, 7, 1),
    Sketcher.Constraint("Coincident", 7, 2, 0, 1),
    Sketcher.Constraint("Vertical", 0),
    Sketcher.Constraint("Horizontal", 1),
    Sketcher.Constraint("Horizontal", 3),
    Sketcher.Constraint("Vertical", 4),
    Sketcher.Constraint("Horizontal", 5),
    Sketcher.Constraint("Horizontal", 7),
    Sketcher.Constraint("Coincident", 6, 3, 2, 3),
    Sketcher.Constraint("Equal", 2, 6),
    Sketcher.Constraint("Symmetric", 1, 2, 2, 1, -2),
    Sketcher.Constraint("Symmetric", 4, 2, 7, 2, -2),
    Sketcher.Constraint("Vertical", 2, 1, 5, 2),
    Sketcher.Constraint("Radius", 2, Q("2.6 mm")),
    Sketcher.Constraint("DistanceY", 0, 1, 0, 2, Q("4.5 mm")),
    Sketcher.Constraint("DistanceX", 0, 2, -1, 1, Q("5 mm")),
    Sketcher.Constraint("DistanceY", -1, 1, 4, 2, Q("8 mm")),
])
pocket2 = body.newObject("PartDesign::Pocket", "Pocket001")
pocket2.Profile = sketch9
pocket2.Length = 2.6
pocket2.Reversed = True

sketch10 = body.newObject("Sketcher::SketchObject", "Sketch009")
sketch10.AttachmentSupport = (doc.getObject("YZ_Plane"), [""])
sketch10.MapMode = "FlatFace"
sketch10.addGeometry([
    Part.LineSegment(Vector(2, 8.25, 0), Vector(2, 10.25, 0)),
    Part.LineSegment(Vector(2, 10.25, 0), Vector(0, 10.25, 0)),
    Part.LineSegment(Vector(0, 10.25, 0), Vector(0, 7.75, 0)),
    Part.LineSegment(Vector(0, 7.75, 0), Vector(1.5, 7.75, 0)),
    Part.ArcOfCircle(Part.Circle(Vector(1.5, 8.25, 0), Vector(0, 0, 1), 0.5), math.radians(-90), math.radians(0)),
], False)
sketch10.addGeometry(Part.LineSegment(Vector(0, 10.25, 0), Vector(2, 10.25, 0)), True)
sketch10.addConstraint([
    Sketcher.Constraint("Coincident", 0, 2, 1, 1),
    Sketcher.Constraint("Coincident", 1, 2, 2, 1),
    Sketcher.Constraint("Coincident", 2, 2, 3, 1),
    Sketcher.Constraint("Tangent", 3, 2, 4, 1),
    Sketcher.Constraint("Tangent", 4, 2, 0, 1),
    Sketcher.Constraint("Vertical", 0),
    Sketcher.Constraint("Horizontal", 1),
    Sketcher.Constraint("Vertical", 2),
    Sketcher.Constraint("Horizontal", 3),
    Sketcher.Constraint("Horizontal", 5),
    Sketcher.Constraint("Coincident", 5, 1, 1, 2),
    Sketcher.Constraint("PointOnObject", 1, 2, -2),
    Sketcher.Constraint("Vertical", 4, 2, 5, 2),
    Sketcher.Constraint("Equal", 5, 0),
    Sketcher.Constraint("Radius", 4, Q("0.5 mm")),
    Sketcher.Constraint("DistanceX", 1, 2, 1, 1, Q("2 mm")),
    Sketcher.Constraint("DistanceY", -1, 1, 4, 3, Q("8.25 mm")),
])
revolution4 = body.newObject("PartDesign::Revolution", "Revolution003")
revolution4.Profile = sketch10
revolution4.ReferenceAxis = (sketch10, ["Axis0"])
revolution4.Angle = 360

sketch11 = body.newObject("Sketcher::SketchObject", "Sketch010")
sketch11.AttachmentSupport = (doc.getObject("XZ_Plane"), [""])
sketch11.MapMode = "FlatFace"
sketch11.AttachmentOffset = App.Placement(Vector(0, 0, -0.5), App.Rotation())
sketch11.addGeometry([
    Part.LineSegment(Vector(-0.87, 10.25, 0), Vector(-0.43, 11, 0)),
    Part.LineSegment(Vector(-0.43, 11, 0), Vector(-0.25, 11, 0)),
    Part.LineSegment(Vector(-0.25, 11, 0), Vector(-0.25, 12.74, 0)),
    Part.ArcOfCircle(Part.Circle(Vector(0, 10.25, 0), Vector(0, 0, 1), 2.5), math.radians(84.26), math.radians(95.74)),
    Part.LineSegment(Vector(0.25, 12.74, 0), Vector(0.25, 11, 0)),
    Part.LineSegment(Vector(0.25, 11, 0), Vector(0.43, 11, 0)),
    Part.LineSegment(Vector(0.43, 11, 0), Vector(0.87, 10.25, 0)),
    Part.LineSegment(Vector(0.87, 10.25, 0), Vector(0.43, 9.5, 0)),
    Part.LineSegment(Vector(0.43, 9.5, 0), Vector(0.25, 9.5, 0)),
    Part.LineSegment(Vector(0.25, 9.5, 0), Vector(0.25, 7.76, 0)),
    Part.ArcOfCircle(Part.Circle(Vector(0, 10.25, 0), Vector(0, 0, 1), 2.5), math.radians(-95.74), math.radians(-84.26)),
    Part.LineSegment(Vector(-0.25, 7.76, 0), Vector(-0.25, 9.5, 0)),
    Part.LineSegment(Vector(-0.25, 9.5, 0), Vector(-0.43, 9.5, 0)),
    Part.LineSegment(Vector(-0.43, 9.5, 0), Vector(-0.87, 10.25, 0)),
], False)
sketch11.addConstraint([
    Sketcher.Constraint("Coincident", 0, 2, 1, 1),
    Sketcher.Constraint("Coincident", 1, 2, 2, 1),
    Sketcher.Constraint("Coincident", 2, 2, 3, 2),
    Sketcher.Constraint("Coincident", 3, 1, 4, 1),
    Sketcher.Constraint("Coincident", 4, 2, 5, 1),
    Sketcher.Constraint("Coincident", 5, 2, 6, 1),
    Sketcher.Constraint("Coincident", 6, 2, 7, 1),
    Sketcher.Constraint("Coincident", 7, 2, 8, 1),
    Sketcher.Constraint("Coincident", 8, 2, 9, 1),
    Sketcher.Constraint("Coincident", 9, 2, 10, 2),
    Sketcher.Constraint("Coincident", 10, 1, 11, 1),
    Sketcher.Constraint("Coincident", 11, 2, 12, 1),
    Sketcher.Constraint("Coincident", 12, 2, 13, 1),
    Sketcher.Constraint("Coincident", 13, 2, 0, 1),
    Sketcher.Constraint("Horizontal", 1),
    Sketcher.Constraint("Vertical", 2),
    Sketcher.Constraint("Vertical", 4),
    Sketcher.Constraint("Horizontal", 5),
    Sketcher.Constraint("Horizontal", 8),
    Sketcher.Constraint("Vertical", 9),
    Sketcher.Constraint("Vertical", 11),
    Sketcher.Constraint("Horizontal", 12),
    Sketcher.Constraint("Coincident", 10, 3, 3, 3),
    Sketcher.Constraint("Equal", 3, 10),
    Sketcher.Constraint("Symmetric", 2, 2, 3, 1, -2),
    Sketcher.Constraint("Symmetric", 0, 2, 5, 2, -2),
    Sketcher.Constraint("Symmetric", 8, 2, 11, 2, -2),
    Sketcher.Constraint("Symmetric", 6, 2, 13, 2, -2),
    Sketcher.Constraint("Parallel", 0, 7),
    Sketcher.Constraint("Parallel", 6, 13),
    Sketcher.Constraint("Horizontal", 10, 3, 6, 2),
    Sketcher.Constraint("Vertical", 5, 2, 7, 2),
    Sketcher.Constraint("Vertical", 4, 2, 8, 2),
    Sketcher.Constraint("Radius", 3, Q("2.5 mm")),
    Sketcher.Constraint("Angle", 0, Q("60 deg")),
    Sketcher.Constraint("DistanceY", -1, 1, 0, 2, Q("11 mm")),
    Sketcher.Constraint("DistanceY", -1, 1, 7, 2, Q("9.5 mm")),
    Sketcher.Constraint("DistanceX", 2, 2, 3, 1, Q("0.5 mm")),
    Sketcher.Constraint("DistanceX", 1, 1, 1, 2, Q("0.183013 mm")),
])
pocket3 = body.newObject("PartDesign::Pocket", "Pocket002")
pocket3.Profile = sketch11
pocket3.Length = 2.1

doc.recompute()
